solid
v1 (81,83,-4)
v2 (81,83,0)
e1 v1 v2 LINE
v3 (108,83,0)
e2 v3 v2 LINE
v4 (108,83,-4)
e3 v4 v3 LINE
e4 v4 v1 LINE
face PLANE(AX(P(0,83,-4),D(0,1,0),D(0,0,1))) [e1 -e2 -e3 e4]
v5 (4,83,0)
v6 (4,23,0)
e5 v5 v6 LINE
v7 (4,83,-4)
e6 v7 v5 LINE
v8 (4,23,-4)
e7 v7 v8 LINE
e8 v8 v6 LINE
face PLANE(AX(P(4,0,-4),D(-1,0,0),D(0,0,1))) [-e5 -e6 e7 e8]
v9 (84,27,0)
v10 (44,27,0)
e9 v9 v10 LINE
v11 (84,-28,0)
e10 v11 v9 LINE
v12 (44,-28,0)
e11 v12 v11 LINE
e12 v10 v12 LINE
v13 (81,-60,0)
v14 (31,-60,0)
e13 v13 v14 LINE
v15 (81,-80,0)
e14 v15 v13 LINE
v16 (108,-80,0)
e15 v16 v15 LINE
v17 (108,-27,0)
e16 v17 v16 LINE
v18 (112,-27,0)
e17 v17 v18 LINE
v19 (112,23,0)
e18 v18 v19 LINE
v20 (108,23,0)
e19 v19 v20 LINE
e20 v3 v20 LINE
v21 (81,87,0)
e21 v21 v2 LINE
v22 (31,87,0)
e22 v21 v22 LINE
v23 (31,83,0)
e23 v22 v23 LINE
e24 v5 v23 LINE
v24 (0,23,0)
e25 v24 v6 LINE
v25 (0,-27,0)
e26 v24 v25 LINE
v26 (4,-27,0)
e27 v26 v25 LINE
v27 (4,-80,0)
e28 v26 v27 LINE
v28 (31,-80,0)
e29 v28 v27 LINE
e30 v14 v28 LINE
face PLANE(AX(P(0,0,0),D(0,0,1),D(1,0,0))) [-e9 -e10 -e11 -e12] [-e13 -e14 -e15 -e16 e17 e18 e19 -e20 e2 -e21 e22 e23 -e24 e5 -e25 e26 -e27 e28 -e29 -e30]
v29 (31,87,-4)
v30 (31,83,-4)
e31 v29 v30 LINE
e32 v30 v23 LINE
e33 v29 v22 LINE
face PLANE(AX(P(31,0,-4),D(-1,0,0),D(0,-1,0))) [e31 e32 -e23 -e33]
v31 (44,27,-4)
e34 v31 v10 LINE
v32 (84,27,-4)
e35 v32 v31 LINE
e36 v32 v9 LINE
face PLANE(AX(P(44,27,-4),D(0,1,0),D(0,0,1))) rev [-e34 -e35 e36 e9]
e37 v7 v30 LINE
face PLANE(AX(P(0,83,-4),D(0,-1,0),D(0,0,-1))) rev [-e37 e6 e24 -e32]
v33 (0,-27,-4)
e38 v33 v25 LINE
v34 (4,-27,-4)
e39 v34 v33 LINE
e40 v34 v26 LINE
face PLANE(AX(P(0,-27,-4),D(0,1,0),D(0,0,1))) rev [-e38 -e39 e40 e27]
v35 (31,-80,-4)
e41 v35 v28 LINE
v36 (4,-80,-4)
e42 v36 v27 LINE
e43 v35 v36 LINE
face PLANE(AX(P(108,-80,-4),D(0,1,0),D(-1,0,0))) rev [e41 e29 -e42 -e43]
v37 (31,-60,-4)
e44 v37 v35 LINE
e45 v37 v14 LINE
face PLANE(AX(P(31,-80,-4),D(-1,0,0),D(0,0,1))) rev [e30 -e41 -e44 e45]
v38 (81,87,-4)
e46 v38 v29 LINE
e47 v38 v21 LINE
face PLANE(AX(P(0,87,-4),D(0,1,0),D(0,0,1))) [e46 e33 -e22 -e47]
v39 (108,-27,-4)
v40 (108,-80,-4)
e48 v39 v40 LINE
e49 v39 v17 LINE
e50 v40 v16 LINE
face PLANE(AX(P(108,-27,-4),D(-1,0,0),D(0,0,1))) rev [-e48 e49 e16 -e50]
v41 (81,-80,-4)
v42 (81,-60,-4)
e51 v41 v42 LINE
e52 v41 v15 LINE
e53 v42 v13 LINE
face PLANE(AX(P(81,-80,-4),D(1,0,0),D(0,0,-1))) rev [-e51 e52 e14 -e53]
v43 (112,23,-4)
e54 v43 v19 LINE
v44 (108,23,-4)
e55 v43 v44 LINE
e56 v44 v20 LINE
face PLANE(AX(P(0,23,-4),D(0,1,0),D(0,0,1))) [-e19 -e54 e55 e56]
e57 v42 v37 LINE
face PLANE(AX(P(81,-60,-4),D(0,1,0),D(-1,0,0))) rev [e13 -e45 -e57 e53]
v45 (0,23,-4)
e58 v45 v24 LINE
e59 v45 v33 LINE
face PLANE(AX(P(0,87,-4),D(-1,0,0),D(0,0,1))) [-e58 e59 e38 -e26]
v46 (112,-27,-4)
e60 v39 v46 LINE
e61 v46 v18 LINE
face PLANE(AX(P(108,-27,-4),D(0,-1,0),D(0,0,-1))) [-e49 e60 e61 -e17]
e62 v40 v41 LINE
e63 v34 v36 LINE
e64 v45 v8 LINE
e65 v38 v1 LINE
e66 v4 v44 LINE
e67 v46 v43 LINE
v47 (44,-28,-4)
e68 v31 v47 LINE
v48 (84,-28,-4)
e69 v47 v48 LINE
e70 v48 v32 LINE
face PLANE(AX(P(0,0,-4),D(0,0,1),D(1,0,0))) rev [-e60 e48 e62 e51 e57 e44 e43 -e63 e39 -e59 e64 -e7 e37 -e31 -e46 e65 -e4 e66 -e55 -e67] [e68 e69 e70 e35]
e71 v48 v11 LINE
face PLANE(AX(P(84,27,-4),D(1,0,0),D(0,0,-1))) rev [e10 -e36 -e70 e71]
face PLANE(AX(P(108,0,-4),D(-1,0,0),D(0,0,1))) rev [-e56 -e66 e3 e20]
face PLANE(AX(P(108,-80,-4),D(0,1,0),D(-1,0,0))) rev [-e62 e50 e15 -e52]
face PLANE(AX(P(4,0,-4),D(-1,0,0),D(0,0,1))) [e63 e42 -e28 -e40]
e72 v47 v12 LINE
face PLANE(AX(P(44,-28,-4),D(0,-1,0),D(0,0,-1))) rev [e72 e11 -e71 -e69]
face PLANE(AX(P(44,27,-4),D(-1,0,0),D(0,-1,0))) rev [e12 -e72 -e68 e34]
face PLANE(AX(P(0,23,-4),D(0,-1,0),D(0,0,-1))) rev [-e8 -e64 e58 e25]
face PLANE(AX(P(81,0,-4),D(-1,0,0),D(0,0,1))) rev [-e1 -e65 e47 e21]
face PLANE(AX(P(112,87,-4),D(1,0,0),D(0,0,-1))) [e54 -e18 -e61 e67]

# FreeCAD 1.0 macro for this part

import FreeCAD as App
import Part
import Sketcher

V = App.Vector

doc = App.newDocument("Part")
body = doc.addObject("PartDesign::Body", "Body")

# Sketch on XY plane
sketch1 = body.newObject("Sketcher::SketchObject", "Sketch")
sketch1.AttachmentSupport = (doc.getObject("XY_Plane"), [""])
sketch1.MapMode = "FlatFace"
sketch1.addGeometry([
    Part.LineSegment(V(0, 87, 0), V(0, -85, 0)),
    Part.LineSegment(V(0, -85, 0), V(112, -85, 0)),
    Part.LineSegment(V(112, -85, 0), V(112, 87, 0)),
    Part.LineSegment(V(112, 87, 0), V(0, 87, 0)),
], False)
sketch1.addConstraint([
    Sketcher.Constraint("Coincident", 0, 2, 1, 1),
    Sketcher.Constraint("Coincident", 1, 2, 2, 1),
    Sketcher.Constraint("Coincident", 2, 2, 3, 1),
    Sketcher.Constraint("Coincident", 3, 2, 0, 1),
    Sketcher.Constraint("Vertical", 0),
    Sketcher.Constraint("Horizontal", 1),
    Sketcher.Constraint("Vertical", 2),
    Sketcher.Constraint("Horizontal", 3),
    Sketcher.Constraint("PointOnObject", 0, 2, -2),
    Sketcher.Constraint("DistanceX", 1, 1, 1, 2, 112.0),
    Sketcher.Constraint("DistanceY", 0, 2, 0, 1, 172.0),
    Sketcher.Constraint("DistanceY", 0, 2, -1, 1, 85.0),
])
pad1 = body.newObject("PartDesign::Pad", "Pad")
pad1.Profile = sketch1
pad1.Length = 4
pad1.Reversed = True

# Sketch on XY plane
sketch2 = body.newObject("Sketcher::SketchObject", "Sketch001")
sketch2.AttachmentSupport = (doc.getObject("XY_Plane"), [""])
sketch2.MapMode = "FlatFace"
sketch2.addGeometry([
    Part.LineSegment(V(81, 87, 0), V(81, 83, 0)),  # 0
    Part.LineSegment(V(81, 83, 0), V(108, 83, 0)),  # 1
    Part.LineSegment(V(108, 83, 0), V(108, 23, 0)),  # 2
    Part.LineSegment(V(108, 23, 0), V(112, 23, 0)),  # 3
    Part.LineSegment(V(112, 23, 0), V(112, 87, 0)),  # 4
    Part.LineSegment(V(112, 87, 0), V(81, 87, 0)),  # 5
    Part.LineSegment(V(4, 83, 0), V(31, 83, 0)),  # 6
    Part.LineSegment(V(31, 83, 0), V(31, 87, 0)),  # 7
    Part.LineSegment(V(31, 87, 0), V(0, 87, 0)),  # 8
    Part.LineSegment(V(0, 87, 0), V(0, 23, 0)),  # 9
    Part.LineSegment(V(0, 23, 0), V(4, 23, 0)),  # 10
    Part.LineSegment(V(4, 23, 0), V(4, 83, 0)),  # 11
    Part.LineSegment(V(0, -27, 0), V(0, -85, 0)),  # 12
    Part.LineSegment(V(0, -85, 0), V(4, -85, 0)),  # 13
    Part.LineSegment(V(4, -85, 0), V(4, -27, 0)),  # 14
    Part.LineSegment(V(4, -27, 0), V(0, -27, 0)),  # 15
    Part.LineSegment(V(108, -27, 0), V(108, -85, 0)),  # 16
    Part.LineSegment(V(108, -85, 0), V(112, -85, 0)),  # 17
    Part.LineSegment(V(112, -85, 0), V(112, -27, 0)),  # 18
    Part.LineSegment(V(112, -27, 0), V(108, -27, 0)),  # 19
], False)
sketch2.addConstraint([
    Sketcher.Constraint("Coincident", 0, 2, 1, 1),
    Sketcher.Constraint("Coincident", 1, 2, 2, 1),
    Sketcher.Constraint("Coincident", 2, 2, 3, 1),
    Sketcher.Constraint("Coincident", 3, 2, 4, 1),
    Sketcher.Constraint("Coincident", 4, 2, 5, 1),
    Sketcher.Constraint("Coincident", 5, 2, 0, 1),
    Sketcher.Constraint("Coincident", 6, 2, 7, 1),
    Sketcher.Constraint("Coincident", 7, 2, 8, 1),
    Sketcher.Constraint("Coincident", 8, 2, 9, 1),
    Sketcher.Constraint("Coincident", 9, 2, 10, 1),
    Sketcher.Constraint("Coincident", 10, 2, 11, 1),
    Sketcher.Constraint("Coincident", 11, 2, 6, 1),
    Sketcher.Constraint("Coincident", 12, 2, 13, 1),
    Sketcher.Constraint("Coincident", 13, 2, 14, 1),
    Sketcher.Constraint("Coincident", 14, 2, 15, 1),
    Sketcher.Constraint("Coincident", 15, 2, 12, 1),
    Sketcher.Constraint("Coincident", 16, 2, 17, 1),
    Sketcher.Constraint("Coincident", 17, 2, 18, 1),
    Sketcher.Constraint("Coincident", 18, 2, 19, 1),
    Sketcher.Constraint("Coincident", 19, 2, 16, 1),
    Sketcher.Constraint("Vertical", 0),
    Sketcher.Constraint("Horizontal", 1),
    Sketcher.Constraint("Vertical", 2),
    Sketcher.Constraint("Horizontal", 3),
    Sketcher.Constraint("Vertical", 4),
    Sketcher.Constraint("Horizontal", 5),
    Sketcher.Constraint("Horizontal", 6),
    Sketcher.Constraint("Vertical", 7),
    Sketcher.Constraint("Horizontal", 8),
    Sketcher.Constraint("Vertical", 9),
    Sketcher.Constraint("Horizontal", 10),
    Sketcher.Constraint("Vertical", 11),
    Sketcher.Constraint("Vertical", 12),
    Sketcher.Constraint("Horizontal", 13),
    Sketcher.Constraint("Vertical", 14),
    Sketcher.Constraint("Horizontal", 15),
    Sketcher.Constraint("Vertical", 16),
    Sketcher.Constraint("Horizontal", 17),
    Sketcher.Constraint("Vertical", 18),
    Sketcher.Constraint("Horizontal", 19),
    Sketcher.Constraint("PointOnObject", 8, 2, -2),
    Sketcher.Constraint("PointOnObject", 12, 2, -2),
    Sketcher.Constraint("Horizontal", 1, 2, 6, 2),
    Sketcher.Constraint("Horizontal", 5, 2, 7, 2),
    Sketcher.Constraint("Horizontal", 3, 2, 9, 2),
    Sketcher.Constraint("Horizontal", 13, 2, 16, 2),
    Sketcher.Constraint("Horizontal", 15, 2, 18, 2),
    Sketcher.Constraint("Vertical", 11, 2, 13, 2),
    Sketcher.Constraint("Vertical", 2, 2, 16, 2),
    Sketcher.Constraint("Vertical", 4, 2, 17, 2),
    Sketcher.Constraint("Equal", 1, 6),
    Sketcher.Constraint("Equal", 5, 8),
    Sketcher.Constraint("Equal", 19, 0),
    Sketcher.Constraint("DistanceX", 1, 1, 1, 2, 27.0),
    Sketcher.Constraint("DistanceX", 3, 1, 3, 2, 4.0),
    Sketcher.Constraint("DistanceY", 2, 2, 2, 1, 60.0),
    Sketcher.Constraint("DistanceY", 12, 2, 12, 1, 58.0),
    Sketcher.Constraint("DistanceX", -1, 1, 0, 2, 81.0),
    Sketcher.Constraint("DistanceY", -1, 1, 0, 2, 83.0),
    Sketcher.Constraint("DistanceY", 12, 2, -1, 1, 85.0),
])
pocket1 = body.newObject("PartDesign::Pocket", "Pocket")
pocket1.Profile = sketch2
pocket1.Length = 4

# Sketch on XY plane
sketch3 = body.newObject("Sketcher::SketchObject", "Sketch002")
sketch3.AttachmentSupport = (doc.getObject("XY_Plane"), [""])
sketch3.MapMode = "FlatFace"
sketch3.addGeometry([
    Part.LineSegment(V(4, -80, 0), V(4, -85, 0)),
    Part.LineSegment(V(4, -85, 0), V(108, -85, 0)),
    Part.LineSegment(V(108, -85, 0), V(108, -80, 0)),
    Part.LineSegment(V(108, -80, 0), V(4, -80, 0)),
], False)
sketch3.addConstraint([
    Sketcher.Constraint("Coincident", 0, 2, 1, 1),
    Sketcher.Constraint("Coincident", 1, 2, 2, 1),
    Sketcher.Constraint("Coincident", 2, 2, 3, 1),
    Sketcher.Constraint("Coincident", 3, 2, 0, 1),
    Sketcher.Constraint("Vertical", 0),
    Sketcher.Constraint("Horizontal", 1),
    Sketcher.Constraint("Vertical", 2),
    Sketcher.Constraint("Horizontal", 3),
    Sketcher.Constraint("DistanceX", 1, 1, 1, 2, 104.0),
    Sketcher.Constraint("DistanceY", 0, 2, 0, 1, 5.0),
    Sketcher.Constraint("DistanceX", -1, 1, 0, 2, 4.0),
    Sketcher.Constraint("DistanceY", 0, 2, -1, 1, 85.0),
])
pocket2 = body.newObject("PartDesign::Pocket", "Pocket001")
pocket2.Profile = sketch3
pocket2.Length = 4

# Sketch on XY plane
sketch4 = body.newObject("Sketcher::SketchObject", "Sketch003")
sketch4.AttachmentSupport = (doc.getObject("XY_Plane"), [""])
sketch4.MapMode = "FlatFace"
sketch4.addGeometry([
    Part.LineSegment(V(44, 27, 0), V(44, -28, 0)),
    Part.LineSegment(V(44, -28, 0), V(84, -28, 0)),
    Part.LineSegment(V(84, -28, 0), V(84, 27, 0)),
    Part.LineSegment(V(84, 27, 0), V(44, 27, 0)),
], False)
sketch4.addConstraint([
    Sketcher.Constraint("Coincident", 0, 2, 1, 1),
    Sketcher.Constraint("Coincident", 1, 2, 2, 1),
    Sketcher.Constraint("Coincident", 2, 2, 3, 1),
    Sketcher.Constraint("Coincident", 3, 2, 0, 1),
    Sketcher.Constraint("Vertical", 0),
    Sketcher.Constraint("Horizontal", 1),
    Sketcher.Constraint("Vertical", 2),
    Sketcher.Constraint("Horizontal", 3),
    Sketcher.Constraint("DistanceX", 1, 1, 1, 2, 40.0),
    Sketcher.Constraint("DistanceY", 0, 2, 0, 1, 55.0),
    Sketcher.Constraint("DistanceX", -1, 1, 0, 2, 44.0),
    Sketcher.Constraint("DistanceY", 0, 2, -1, 1, 28.0),
])
pocket3 = body.newObject("PartDesign::Pocket", "Pocket002")
pocket3.Profile = sketch4
pocket3.Length = 4

# Sketch on XY plane
sketch5 = body.newObject("Sketcher::SketchObject", "Sketch004")
sketch5.AttachmentSupport = (doc.getObject("XY_Plane"), [""])
sketch5.MapMode = "FlatFace"
sketch5.addGeometry([
    Part.LineSegment(V(31, -60, 0), V(31, -80, 0)),
    Part.LineSegment(V(31, -80, 0), V(81, -80, 0)),
    Part.LineSegment(V(81, -80, 0), V(81, -60, 0)),
    Part.LineSegment(V(81, -60, 0), V(31, -60, 0)),
], False)
sketch5.addConstraint([
    Sketcher.Constraint("Coincident", 0, 2, 1, 1),
    Sketcher.Constraint("Coincident", 1, 2, 2, 1),
    Sketcher.Constraint("Coincident", 2, 2, 3, 1),
    Sketcher.Constraint("Coincident", 3, 2, 0, 1),
    Sketcher.Constraint("Vertical", 0),
    Sketcher.Constraint("Horizontal", 1),
    Sketcher.Constraint("Vertical", 2),
    Sketcher.Constraint("Horizontal", 3),
    Sketcher.Constraint("DistanceX", 1, 1, 1, 2, 50.0),
    Sketcher.Constraint("DistanceY", 0, 2, 0, 1, 20.0),
    Sketcher.Constraint("DistanceX", -1, 1, 0, 2, 31.0),
    Sketcher.Constraint("DistanceY", 0, 2, -1, 1, 80.0),
])
pocket4 = body.newObject("PartDesign::Pocket", "Pocket003")
pocket4.Profile = sketch5
pocket4.Length = 4

doc.recompute()
